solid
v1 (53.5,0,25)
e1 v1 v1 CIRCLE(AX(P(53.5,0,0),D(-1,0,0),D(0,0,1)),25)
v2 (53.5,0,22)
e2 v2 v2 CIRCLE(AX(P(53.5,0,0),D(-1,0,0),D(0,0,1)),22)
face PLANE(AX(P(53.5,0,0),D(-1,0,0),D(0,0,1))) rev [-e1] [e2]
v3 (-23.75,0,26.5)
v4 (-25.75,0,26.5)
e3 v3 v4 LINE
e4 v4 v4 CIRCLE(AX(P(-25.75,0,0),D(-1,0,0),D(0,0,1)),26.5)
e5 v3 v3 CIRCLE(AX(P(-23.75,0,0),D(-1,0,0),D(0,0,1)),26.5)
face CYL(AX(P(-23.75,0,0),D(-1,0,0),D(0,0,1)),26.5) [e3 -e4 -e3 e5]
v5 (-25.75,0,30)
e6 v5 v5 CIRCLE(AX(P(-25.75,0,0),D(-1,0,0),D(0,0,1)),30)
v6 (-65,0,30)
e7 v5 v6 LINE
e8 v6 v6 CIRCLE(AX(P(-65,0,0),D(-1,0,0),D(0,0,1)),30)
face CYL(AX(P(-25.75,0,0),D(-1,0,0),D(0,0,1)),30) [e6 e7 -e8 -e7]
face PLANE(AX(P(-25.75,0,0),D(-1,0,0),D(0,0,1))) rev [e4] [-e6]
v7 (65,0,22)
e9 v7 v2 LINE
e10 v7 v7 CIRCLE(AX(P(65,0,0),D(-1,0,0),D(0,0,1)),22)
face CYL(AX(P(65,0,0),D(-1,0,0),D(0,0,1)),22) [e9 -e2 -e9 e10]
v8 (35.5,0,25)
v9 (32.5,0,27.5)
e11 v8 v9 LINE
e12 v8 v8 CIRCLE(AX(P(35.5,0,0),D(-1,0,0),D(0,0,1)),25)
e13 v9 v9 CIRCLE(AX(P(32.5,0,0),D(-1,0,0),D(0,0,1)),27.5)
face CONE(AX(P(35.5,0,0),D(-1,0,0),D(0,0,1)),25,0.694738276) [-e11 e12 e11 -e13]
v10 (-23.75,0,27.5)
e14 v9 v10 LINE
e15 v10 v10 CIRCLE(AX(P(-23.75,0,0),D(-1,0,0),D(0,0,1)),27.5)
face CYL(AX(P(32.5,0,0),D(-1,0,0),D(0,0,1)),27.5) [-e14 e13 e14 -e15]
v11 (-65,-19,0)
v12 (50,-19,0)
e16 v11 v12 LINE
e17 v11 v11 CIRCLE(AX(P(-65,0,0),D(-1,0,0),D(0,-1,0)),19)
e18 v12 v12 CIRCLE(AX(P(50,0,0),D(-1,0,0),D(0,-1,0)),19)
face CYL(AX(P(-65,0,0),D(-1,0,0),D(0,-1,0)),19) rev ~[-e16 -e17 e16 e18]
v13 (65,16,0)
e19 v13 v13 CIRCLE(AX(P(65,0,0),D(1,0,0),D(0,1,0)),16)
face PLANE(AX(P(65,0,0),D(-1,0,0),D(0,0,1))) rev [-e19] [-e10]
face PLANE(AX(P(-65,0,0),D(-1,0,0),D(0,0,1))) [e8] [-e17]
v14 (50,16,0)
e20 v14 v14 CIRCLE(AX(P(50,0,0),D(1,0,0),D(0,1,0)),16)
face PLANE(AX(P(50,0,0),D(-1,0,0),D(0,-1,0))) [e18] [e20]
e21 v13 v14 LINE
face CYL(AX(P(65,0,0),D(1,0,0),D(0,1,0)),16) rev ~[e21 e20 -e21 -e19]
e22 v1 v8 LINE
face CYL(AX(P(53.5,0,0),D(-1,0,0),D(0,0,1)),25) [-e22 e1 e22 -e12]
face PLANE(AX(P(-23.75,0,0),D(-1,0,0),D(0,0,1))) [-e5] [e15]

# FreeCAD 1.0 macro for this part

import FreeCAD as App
import Part
import Sketcher
from FreeCAD import Vector
Q = App.Units.Quantity

doc = App.newDocument("Part")
body = doc.addObject("PartDesign::Body", "Body")

sketch1 = doc.addObject("Sketcher::SketchObject", "Sketch")
body.addObject(sketch1)
sketch1.AttachmentSupport = (doc.XZ_Plane, [""])
sketch1.MapMode = "FlatFace"
sketch1.addGeometry([
    Part.LineSegment(Vector(-65, 30, 0), Vector(-65, 0, 0)),
    Part.LineSegment(Vector(-65, 0, 0), Vector(65, 0, 0)),
    Part.LineSegment(Vector(65, 0, 0), Vector(65, 22, 0)),
    Part.LineSegment(Vector(65, 22, 0), Vector(53.5, 22, 0)),
    Part.LineSegment(Vector(53.5, 22, 0), Vector(53.5, 25, 0)),
    Part.LineSegment(Vector(53.5, 25, 0), Vector(35.5, 25, 0)),
    Part.LineSegment(Vector(35.5, 25, 0), Vector(32.5, 27.5, 0)),
    Part.LineSegment(Vector(32.5, 27.5, 0), Vector(-23.75, 27.5, 0)),
    Part.LineSegment(Vector(-23.75, 27.5, 0), Vector(-23.75, 26.5, 0)),
    Part.LineSegment(Vector(-23.75, 26.5, 0), Vector(-25.75, 26.5, 0)),
    Part.LineSegment(Vector(-25.75, 26.5, 0), Vector(-25.75, 30, 0)),
    Part.LineSegment(Vector(-25.75, 30, 0), Vector(-65, 30, 0)),
], False)
sketch1.addConstraint([
    Sketcher.Constraint("Coincident", 0, 2, 1, 1),
    Sketcher.Constraint("Coincident", 1, 2, 2, 1),
    Sketcher.Constraint("Coincident", 2, 2, 3, 1),
    Sketcher.Constraint("Coincident", 3, 2, 4, 1),
    Sketcher.Constraint("Coincident", 4, 2, 5, 1),
    Sketcher.Constraint("Coincident", 5, 2, 6, 1),
    Sketcher.Constraint("Coincident", 6, 2, 7, 1),
    Sketcher.Constraint("Coincident", 7, 2, 8, 1),
    Sketcher.Constraint("Coincident", 8, 2, 9, 1),
    Sketcher.Constraint("Coincident", 9, 2, 10, 1),
    Sketcher.Constraint("Coincident", 10, 2, 11, 1),
    Sketcher.Constraint("Coincident", 11, 2, 0, 1),
    Sketcher.Constraint("Vertical", 0),
    Sketcher.Constraint("Horizontal", 1),
    Sketcher.Constraint("Vertical", 2),
    Sketcher.Constraint("Horizontal", 3),
    Sketcher.Constraint("Vertical", 4),
    Sketcher.Constraint("Horizontal", 5),
    Sketcher.Constraint("Horizontal", 7),
    Sketcher.Constraint("Vertical", 8),
    Sketcher.Constraint("Horizontal", 9),
    Sketcher.Constraint("Vertical", 10),
    Sketcher.Constraint("Horizontal", 11),
    Sketcher.Constraint("Symmetric", 0, 2, 1, 2, -1, 1),
    Sketcher.Constraint("DistanceX", 1, 1, 1, 2, Q("130 mm")),
    Sketcher.Constraint("DistanceX", 5, 2, 5, 1, Q("18 mm")),
    Sketcher.Constraint("DistanceX", 9, 2, 9, 1, Q("2 mm")),
    Sketcher.Constraint("DistanceY", 0, 2, 0, 1, Q("30 mm")),
    Sketcher.Constraint("DistanceY", 2, 1, 2, 2, Q("22 mm")),
    Sketcher.Constraint("DistanceY", 4, 1, 4, 2, Q("3 mm")),
    Sketcher.Constraint("DistanceY", 8, 2, 8, 1, Q("1 mm")),
    Sketcher.Constraint("DistanceX", 3, 2, 3, 1, Q("11.5 mm")),
    Sketcher.Constraint("DistanceY", 10, 1, 10, 2, Q("3.5 mm")),
    Sketcher.Constraint("DistanceX", 6, 2, 5, 2, Q("3 mm")),
    Sketcher.Constraint("DistanceX", 7, 2, 7, 1, Q("56.25 mm")),
])
revolution = doc.addObject("PartDesign::Revolution", "Revolution")
body.addObject(revolution)
revolution.Profile = sketch1
revolution.ReferenceAxis = (sketch1, ["H_Axis"])
revolution.Angle = 360

sketch2 = doc.addObject("Sketcher::SketchObject", "Sketch001")
body.addObject(sketch2)
sketch2.AttachmentSupport = (doc.YZ_Plane, [""])
sketch2.MapMode = "FlatFace"
sketch2.AttachmentOffset = App.Placement(Vector(0, 0, 65), App.Rotation())
sketch2.addGeometry(Part.Circle(Vector(0, 0, 0), Vector(0, 0, 1), 16), False)
sketch2.addConstraint([
    Sketcher.Constraint("Coincident", 0, 3, -1, 1),
    Sketcher.Constraint("Diameter", 0, Q("32 mm")),
])
pocket1 = doc.addObject("PartDesign::Pocket", "Pocket")
body.addObject(pocket1)
pocket1.Profile = sketch2
pocket1.Type = "ThroughAll"

sketch3 = doc.addObject("Sketcher::SketchObject", "Sketch002")
body.addObject(sketch3)
sketch3.AttachmentSupport = (doc.YZ_Plane, [""])
sketch3.MapMode = "FlatFace"
sketch3.AttachmentOffset = App.Placement(Vector(0, 0, -65), App.Rotation())
sketch3.addGeometry(Part.Circle(Vector(0, 0, 0), Vector(0, 0, 1), 19), False)
sketch3.addConstraint([
    Sketcher.Constraint("Coincident", 0, 3, -1, 1),
    Sketcher.Constraint("Diameter", 0, Q("38 mm")),
])
pocket2 = doc.addObject("PartDesign::Pocket", "Pocket001")
body.addObject(pocket2)
pocket2.Profile = sketch3
pocket2.Length = 115
pocket2.Reversed = True

doc.recompute()
